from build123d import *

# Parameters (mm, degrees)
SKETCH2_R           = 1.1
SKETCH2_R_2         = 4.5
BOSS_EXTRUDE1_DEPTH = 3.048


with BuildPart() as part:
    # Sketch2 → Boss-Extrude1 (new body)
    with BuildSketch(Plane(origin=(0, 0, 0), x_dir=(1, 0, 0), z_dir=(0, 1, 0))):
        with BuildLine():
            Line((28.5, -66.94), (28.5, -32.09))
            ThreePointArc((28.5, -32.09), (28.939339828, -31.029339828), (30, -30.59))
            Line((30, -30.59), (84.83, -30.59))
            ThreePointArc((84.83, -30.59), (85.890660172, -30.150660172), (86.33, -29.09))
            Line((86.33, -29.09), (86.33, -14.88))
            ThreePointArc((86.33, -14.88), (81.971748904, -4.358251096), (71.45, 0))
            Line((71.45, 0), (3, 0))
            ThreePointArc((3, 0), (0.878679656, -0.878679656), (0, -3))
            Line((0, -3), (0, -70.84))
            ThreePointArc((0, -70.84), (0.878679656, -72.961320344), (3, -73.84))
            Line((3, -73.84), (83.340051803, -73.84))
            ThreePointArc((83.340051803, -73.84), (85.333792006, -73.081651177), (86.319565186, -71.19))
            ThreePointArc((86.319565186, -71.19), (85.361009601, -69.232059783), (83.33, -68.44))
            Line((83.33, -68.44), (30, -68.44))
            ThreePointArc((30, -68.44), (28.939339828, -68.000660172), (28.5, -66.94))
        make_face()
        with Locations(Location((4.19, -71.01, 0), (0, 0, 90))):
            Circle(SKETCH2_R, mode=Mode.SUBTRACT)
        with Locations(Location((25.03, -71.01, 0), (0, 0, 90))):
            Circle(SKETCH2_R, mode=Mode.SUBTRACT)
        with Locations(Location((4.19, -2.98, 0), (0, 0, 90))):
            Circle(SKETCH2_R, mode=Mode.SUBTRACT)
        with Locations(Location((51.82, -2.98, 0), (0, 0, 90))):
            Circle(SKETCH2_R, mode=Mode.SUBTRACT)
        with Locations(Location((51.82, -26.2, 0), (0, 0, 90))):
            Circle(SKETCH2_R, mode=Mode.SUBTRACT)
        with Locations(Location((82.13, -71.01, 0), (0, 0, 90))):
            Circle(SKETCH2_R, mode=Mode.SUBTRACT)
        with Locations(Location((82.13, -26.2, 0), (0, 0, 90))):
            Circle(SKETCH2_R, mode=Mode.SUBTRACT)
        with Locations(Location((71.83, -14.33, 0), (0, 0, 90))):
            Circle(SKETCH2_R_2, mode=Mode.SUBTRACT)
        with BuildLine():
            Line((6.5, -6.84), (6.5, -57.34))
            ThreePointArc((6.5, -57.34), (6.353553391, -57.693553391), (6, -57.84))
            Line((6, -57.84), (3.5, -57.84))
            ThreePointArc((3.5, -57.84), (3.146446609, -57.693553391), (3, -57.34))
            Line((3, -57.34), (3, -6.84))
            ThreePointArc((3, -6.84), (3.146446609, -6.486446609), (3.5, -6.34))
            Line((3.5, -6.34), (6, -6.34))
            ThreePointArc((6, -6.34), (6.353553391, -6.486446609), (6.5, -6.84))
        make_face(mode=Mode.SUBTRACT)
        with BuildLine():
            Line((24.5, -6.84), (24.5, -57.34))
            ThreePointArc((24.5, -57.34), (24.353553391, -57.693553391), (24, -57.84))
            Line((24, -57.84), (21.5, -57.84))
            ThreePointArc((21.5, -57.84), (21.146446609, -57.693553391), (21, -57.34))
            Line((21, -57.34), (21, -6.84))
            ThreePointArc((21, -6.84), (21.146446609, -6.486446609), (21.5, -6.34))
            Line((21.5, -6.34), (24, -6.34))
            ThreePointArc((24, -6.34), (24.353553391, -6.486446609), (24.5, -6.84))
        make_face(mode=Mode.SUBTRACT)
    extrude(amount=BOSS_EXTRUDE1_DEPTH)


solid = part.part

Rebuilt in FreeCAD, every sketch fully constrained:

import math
import FreeCAD as App
import Part
import Sketcher

V = App.Vector

doc = App.newDocument("Part")
body = doc.addObject("PartDesign::Body", "Body")

sketch1 = doc.addObject("Sketcher::SketchObject", "Sketch")
body.addObject(sketch1)
sketch1.AttachmentSupport = (doc.XZ_Plane, [""])
sketch1.MapMode = "FlatFace"
sketch1.addGeometry(Part.LineSegment(V(28.5, 66.94, 0), V(28.5, 32.09, 0)), False)
sketch1.addGeometry(Part.ArcOfCircle(Part.Circle(V(30, 32.09, 0), V(0, 0, 1), 1.5), math.radians(180), math.radians(270)), False)
sketch1.addGeometry(Part.LineSegment(V(30, 30.59, 0), V(84.83, 30.59, 0)), False)
sketch1.addGeometry(Part.ArcOfCircle(Part.Circle(V(84.83, 29.09, 0), V(0, 0, 1), 1.5), math.radians(0), math.radians(90)), False)
sketch1.addGeometry(Part.LineSegment(V(86.33, 29.09, 0), V(86.33, 14.88, 0)), False)
sketch1.addGeometry(Part.ArcOfCircle(Part.Circle(V(71.45, 14.88, 0), V(0, 0, 1), 14.88), math.radians(-90), math.radians(0)), False)
sketch1.addGeometry(Part.LineSegment(V(71.45, 0, 0), V(3, 0, 0)), False)
sketch1.addGeometry(Part.ArcOfCircle(Part.Circle(V(3, 3, 0), V(0, 0, 1), 3), math.radians(180), math.radians(270)), False)
sketch1.addGeometry(Part.LineSegment(V(0, 3, 0), V(0, 70.84, 0)), False)
sketch1.addGeometry(Part.ArcOfCircle(Part.Circle(V(3, 70.84, 0), V(0, 0, 1), 3), math.radians(90), math.radians(180)), False)
sketch1.addGeometry(Part.LineSegment(V(3, 73.84, 0), V(83.34, 73.84, 0)), False)
sketch1.addGeometry(Part.ArcOfCircle(Part.Circle(V(83.34, 70.84, 0), V(0, 0, 1), 3), math.radians(7), math.radians(90)), False)
sketch1.addGeometry(Part.ArcOfCircle(Part.Circle(V(83.33, 71.44, 0), V(0, 0, 1), 3), math.radians(-90), math.radians(-5)), False)
sketch1.addGeometry(Part.LineSegment(V(83.33, 68.44, 0), V(30, 68.44, 0)), False)
sketch1.addGeometry(Part.ArcOfCircle(Part.Circle(V(30, 66.94, 0), V(0, 0, 1), 1.5), math.radians(90), math.radians(180)), False)
sketch1.addGeometry(Part.Circle(V(4.19, 71.01, 0), V(0, 0, 1), 1.1), False)
sketch1.addGeometry(Part.Circle(V(25.03, 71.01, 0), V(0, 0, 1), 1.1), False)
sketch1.addGeometry(Part.Circle(V(82.13, 71.01, 0), V(0, 0, 1), 1.1), False)
sketch1.addGeometry(Part.ArcOfCircle(Part.Circle(V(6, 6.84, 0), V(0, 0, 1), 0.5), math.radians(-90), math.radians(0)), False)
sketch1.addGeometry(Part.LineSegment(V(6.5, 6.84, 0), V(6.5, 57.34, 0)), False)
sketch1.addGeometry(Part.ArcOfCircle(Part.Circle(V(6, 57.34, 0), V(0, 0, 1), 0.5), math.radians(0), math.radians(90)), False)
sketch1.addGeometry(Part.LineSegment(V(6, 57.84, 0), V(3.5, 57.84, 0)), False)
sketch1.addGeometry(Part.ArcOfCircle(Part.Circle(V(3.5, 57.34, 0), V(0, 0, 1), 0.5), math.radians(90), math.radians(180)), False)
sketch1.addGeometry(Part.LineSegment(V(3, 57.34, 0), V(3, 6.84, 0)), False)
sketch1.addGeometry(Part.ArcOfCircle(Part.Circle(V(3.5, 6.84, 0), V(0, 0, 1), 0.5), math.radians(180), math.radians(270)), False)
sketch1.addGeometry(Part.LineSegment(V(3.5, 6.34, 0), V(6, 6.34, 0)), False)
sketch1.addGeometry(Part.ArcOfCircle(Part.Circle(V(24, 6.84, 0), V(0, 0, 1), 0.5), math.radians(-90), math.radians(0)), False)
sketch1.addGeometry(Part.LineSegment(V(24.5, 6.84, 0), V(24.5, 57.34, 0)), False)
sketch1.addGeometry(Part.ArcOfCircle(Part.Circle(V(24, 57.34, 0), V(0, 0, 1), 0.5), math.radians(0), math.radians(90)), False)
sketch1.addGeometry(Part.LineSegment(V(24, 57.84, 0), V(21.5, 57.84, 0)), False)
sketch1.addGeometry(Part.ArcOfCircle(Part.Circle(V(21.5, 57.34, 0), V(0, 0, 1), 0.5), math.radians(90), math.radians(180)), False)
sketch1.addGeometry(Part.LineSegment(V(21, 57.34, 0), V(21, 6.84, 0)), False)
sketch1.addGeometry(Part.ArcOfCircle(Part.Circle(V(21.5, 6.84, 0), V(0, 0, 1), 0.5), math.radians(180), math.radians(270)), False)
sketch1.addGeometry(Part.LineSegment(V(21.5, 6.34, 0), V(24, 6.34, 0)), False)
sketch1.addGeometry(Part.Circle(V(4.19, 2.98, 0), V(0, 0, 1), 1.1), False)
sketch1.addGeometry(Part.Circle(V(51.82, 26.2, 0), V(0, 0, 1), 1.1), False)
sketch1.addGeometry(Part.Circle(V(82.13, 26.2, 0), V(0, 0, 1), 1.1), False)
sketch1.addGeometry(Part.Circle(V(51.82, 2.98, 0), V(0, 0, 1), 1.1), False)
sketch1.addGeometry(Part.Circle(V(71.83, 14.33, 0), V(0, 0, 1), 4.5), False)
sketch1.addConstraint(Sketcher.Constraint("Tangent", 0, 2, 1, 1))
sketch1.addConstraint(Sketcher.Constraint("Tangent", 1, 2, 2, 1))
sketch1.addConstraint(Sketcher.Constraint("Tangent", 2, 2, 3, 2))
sketch1.addConstraint(Sketcher.Constraint("Tangent", 3, 1, 4, 1))
sketch1.addConstraint(Sketcher.Constraint("Tangent", 4, 2, 5, 2))
sketch1.addConstraint(Sketcher.Constraint("Tangent", 5, 1, 6, 1))
sketch1.addConstraint(Sketcher.Constraint("Tangent", 6, 2, 7, 2))
sketch1.addConstraint(Sketcher.Constraint("Tangent", 7, 1, 8, 1))
sketch1.addConstraint(Sketcher.Constraint("Tangent", 8, 2, 9, 2))
sketch1.addConstraint(Sketcher.Constraint("Tangent", 9, 1, 10, 1))
sketch1.addConstraint(Sketcher.Constraint("Tangent", 10, 2, 11, 2))
sketch1.addConstraint(Sketcher.Constraint("Coincident", 11, 1, 12, 2))
sketch1.addConstraint(Sketcher.Constraint("Tangent", 12, 1, 13, 1))
sketch1.addConstraint(Sketcher.Constraint("Tangent", 13, 2, 14, 1))
sketch1.addConstraint(Sketcher.Constraint("Tangent", 14, 2, 0, 1))
sketch1.addConstraint(Sketcher.Constraint("Tangent", 18, 2, 19, 1))
sketch1.addConstraint(Sketcher.Constraint("Tangent", 19, 2, 20, 1))
sketch1.addConstraint(Sketcher.Constraint("Tangent", 20, 2, 21, 1))
sketch1.addConstraint(Sketcher.Constraint("Tangent", 21, 2, 22, 1))
sketch1.addConstraint(Sketcher.Constraint("Tangent", 22, 2, 23, 1))
sketch1.addConstraint(Sketcher.Constraint("Tangent", 23, 2, 24, 1))
sketch1.addConstraint(Sketcher.Constraint("Tangent", 24, 2, 25, 1))
sketch1.addConstraint(Sketcher.Constraint("Tangent", 25, 2, 18, 1))
sketch1.addConstraint(Sketcher.Constraint("Tangent", 26, 2, 27, 1))
sketch1.addConstraint(Sketcher.Constraint("Tangent", 27, 2, 28, 1))
sketch1.addConstraint(Sketcher.Constraint("Tangent", 28, 2, 29, 1))
sketch1.addConstraint(Sketcher.Constraint("Tangent", 29, 2, 30, 1))
sketch1.addConstraint(Sketcher.Constraint("Tangent", 30, 2, 31, 1))
sketch1.addConstraint(Sketcher.Constraint("Tangent", 31, 2, 32, 1))
sketch1.addConstraint(Sketcher.Constraint("Tangent", 32, 2, 33, 1))
sketch1.addConstraint(Sketcher.Constraint("Tangent", 33, 2, 26, 1))
sketch1.addConstraint(Sketcher.Constraint("Vertical", 0))
sketch1.addConstraint(Sketcher.Constraint("Horizontal", 2))
sketch1.addConstraint(Sketcher.Constraint("Vertical", 4))
sketch1.addConstraint(Sketcher.Constraint("Horizontal", 6))
sketch1.addConstraint(Sketcher.Constraint("Vertical", 8))
sketch1.addConstraint(Sketcher.Constraint("Horizontal", 10))
sketch1.addConstraint(Sketcher.Constraint("Horizontal", 13))
sketch1.addConstraint(Sketcher.Constraint("Vertical", 19))
sketch1.addConstraint(Sketcher.Constraint("Horizontal", 21))
sketch1.addConstraint(Sketcher.Constraint("Vertical", 23))
sketch1.addConstraint(Sketcher.Constraint("Horizontal", 25))
sketch1.addConstraint(Sketcher.Constraint("Vertical", 27))
sketch1.addConstraint(Sketcher.Constraint("Horizontal", 29))
sketch1.addConstraint(Sketcher.Constraint("Vertical", 31))
sketch1.addConstraint(Sketcher.Constraint("Horizontal", 33))
sketch1.addConstraint(Sketcher.Constraint("Equal", 1, 3))
sketch1.addConstraint(Sketcher.Constraint("Equal", 7, 9))
sketch1.addConstraint(Sketcher.Constraint("Equal", 9, 11))
sketch1.addConstraint(Sketcher.Constraint("Equal", 11, 12))
sketch1.addConstraint(Sketcher.Constraint("Equal", 3, 14))
sketch1.addConstraint(Sketcher.Constraint("Equal", 15, 16))
sketch1.addConstraint(Sketcher.Constraint("Equal", 16, 17))
sketch1.addConstraint(Sketcher.Constraint("Equal", 18, 20))
sketch1.addConstraint(Sketcher.Constraint("Equal", 20, 22))
sketch1.addConstraint(Sketcher.Constraint("Equal", 22, 24))
sketch1.addConstraint(Sketcher.Constraint("Equal", 24, 26))
sketch1.addConstraint(Sketcher.Constraint("Equal", 26, 28))
sketch1.addConstraint(Sketcher.Constraint("Equal", 28, 30))
sketch1.addConstraint(Sketcher.Constraint("Equal", 30, 32))
sketch1.addConstraint(Sketcher.Constraint("Equal", 17, 34))
sketch1.addConstraint(Sketcher.Constraint("Equal", 34, 35))
sketch1.addConstraint(Sketcher.Constraint("Equal", 35, 36))
sketch1.addConstraint(Sketcher.Constraint("Equal", 36, 37))
sketch1.addConstraint(Sketcher.Constraint("PointOnObject", 5, 1, -1))
sketch1.addConstraint(Sketcher.Constraint("PointOnObject", 7, 1, -2))
sketch1.addConstraint(Sketcher.Constraint("Horizontal", 15, 3, 16, 3))
sketch1.addConstraint(Sketcher.Constraint("Horizontal", 16, 3, 17, 3))
sketch1.addConstraint(Sketcher.Constraint("Horizontal", 24, 3, 26, 3))
sketch1.addConstraint(Sketcher.Constraint("Horizontal", 22, 3, 28, 3))
sketch1.addConstraint(Sketcher.Constraint("Horizontal", 35, 3, 36, 3))
sketch1.addConstraint(Sketcher.Constraint("Horizontal", 34, 3, 37, 3))
sketch1.addConstraint(Sketcher.Constraint("Vertical", 15, 3, 34, 3))
sketch1.addConstraint(Sketcher.Constraint("Vertical", 17, 3, 36, 3))
sketch1.addConstraint(Sketcher.Constraint("Vertical", 35, 3, 37, 3))
sketch1.addConstraint(Sketcher.Constraint("Vertical", 9, 1, 22, 2))
sketch1.addConstraint(Sketcher.Constraint("Equal", 25, 29))
sketch1.addConstraint(Sketcher.Constraint("Diameter", 38, 9.0))
sketch1.addConstraint(Sketcher.Constraint("Radius", 7, 3.0))
sketch1.addConstraint(Sketcher.Constraint("Diameter", 15, 2.2))
sketch1.addConstraint(Sketcher.Constraint("Radius", 1, 1.5))
sketch1.addConstraint(Sketcher.Constraint("Radius", 18, 0.5))
sketch1.addConstraint(Sketcher.Constraint("Radius", 5, 14.88))
sketch1.addConstraint(Sketcher.Constraint("DistanceX", 21, 2, 21, 1, 2.5))
sketch1.addConstraint(Sketcher.Constraint("DistanceY", 19, 1, 19, 2, 50.5))
sketch1.addConstraint(Sketcher.Constraint("DistanceX", -1, 1, 1, 3, 30.0))
sketch1.addConstraint(Sketcher.Constraint("DistanceX", -1, 1, 26, 3, 24.0))
sketch1.addConstraint(Sketcher.Constraint("DistanceY", 18, 3, 9, 3, 64.0))
sketch1.addConstraint(Sketcher.Constraint("DistanceX", 38, 3, 3, 3, 13.0))
sketch1.addConstraint(Sketcher.Constraint("DistanceX", 2, 1, 2, 2, 54.83))
sketch1.addConstraint(Sketcher.Constraint("DistanceX", 13, 2, 13, 1, 53.33))
sketch1.addConstraint(Sketcher.Constraint("DistanceY", 0, 2, 0, 1, 34.85))
sketch1.addConstraint(Sketcher.Constraint("DistanceY", 4, 2, 4, 1, 14.21))
sketch1.addConstraint(Sketcher.Constraint("DistanceY", 8, 1, 8, 2, 67.84))
sketch1.addConstraint(Sketcher.Constraint("DistanceY", -1, 1, 35, 3, 26.2))
sketch1.addConstraint(Sketcher.Constraint("DistanceX", 16, 3, 12, 3, 58.3))
sketch1.addConstraint(Sketcher.Constraint("DistanceX", 17, 3, 12, 3, 1.2))
sketch1.addConstraint(Sketcher.Constraint("DistanceY", 37, 3, 5, 3, 11.9))
sketch1.addConstraint(Sketcher.Constraint("DistanceY", 2, 2, 11, 1, 40.6))
sketch1.addConstraint(Sketcher.Constraint("DistanceX", -1, 1, 15, 3, 4.19))
sketch1.addConstraint(Sketcher.Constraint("DistanceY", -1, 1, 15, 3, 71.01))
sketch1.addConstraint(Sketcher.Constraint("DistanceX", -1, 1, 35, 3, 51.82))
sketch1.addConstraint(Sketcher.Constraint("DistanceY", -1, 1, 38, 3, 14.33))
pad1 = doc.addObject("PartDesign::Pad", "Pad")
body.addObject(pad1)
pad1.Profile = sketch1
pad1.Length = 3.048
pad1.Reversed = True

doc.recompute()
